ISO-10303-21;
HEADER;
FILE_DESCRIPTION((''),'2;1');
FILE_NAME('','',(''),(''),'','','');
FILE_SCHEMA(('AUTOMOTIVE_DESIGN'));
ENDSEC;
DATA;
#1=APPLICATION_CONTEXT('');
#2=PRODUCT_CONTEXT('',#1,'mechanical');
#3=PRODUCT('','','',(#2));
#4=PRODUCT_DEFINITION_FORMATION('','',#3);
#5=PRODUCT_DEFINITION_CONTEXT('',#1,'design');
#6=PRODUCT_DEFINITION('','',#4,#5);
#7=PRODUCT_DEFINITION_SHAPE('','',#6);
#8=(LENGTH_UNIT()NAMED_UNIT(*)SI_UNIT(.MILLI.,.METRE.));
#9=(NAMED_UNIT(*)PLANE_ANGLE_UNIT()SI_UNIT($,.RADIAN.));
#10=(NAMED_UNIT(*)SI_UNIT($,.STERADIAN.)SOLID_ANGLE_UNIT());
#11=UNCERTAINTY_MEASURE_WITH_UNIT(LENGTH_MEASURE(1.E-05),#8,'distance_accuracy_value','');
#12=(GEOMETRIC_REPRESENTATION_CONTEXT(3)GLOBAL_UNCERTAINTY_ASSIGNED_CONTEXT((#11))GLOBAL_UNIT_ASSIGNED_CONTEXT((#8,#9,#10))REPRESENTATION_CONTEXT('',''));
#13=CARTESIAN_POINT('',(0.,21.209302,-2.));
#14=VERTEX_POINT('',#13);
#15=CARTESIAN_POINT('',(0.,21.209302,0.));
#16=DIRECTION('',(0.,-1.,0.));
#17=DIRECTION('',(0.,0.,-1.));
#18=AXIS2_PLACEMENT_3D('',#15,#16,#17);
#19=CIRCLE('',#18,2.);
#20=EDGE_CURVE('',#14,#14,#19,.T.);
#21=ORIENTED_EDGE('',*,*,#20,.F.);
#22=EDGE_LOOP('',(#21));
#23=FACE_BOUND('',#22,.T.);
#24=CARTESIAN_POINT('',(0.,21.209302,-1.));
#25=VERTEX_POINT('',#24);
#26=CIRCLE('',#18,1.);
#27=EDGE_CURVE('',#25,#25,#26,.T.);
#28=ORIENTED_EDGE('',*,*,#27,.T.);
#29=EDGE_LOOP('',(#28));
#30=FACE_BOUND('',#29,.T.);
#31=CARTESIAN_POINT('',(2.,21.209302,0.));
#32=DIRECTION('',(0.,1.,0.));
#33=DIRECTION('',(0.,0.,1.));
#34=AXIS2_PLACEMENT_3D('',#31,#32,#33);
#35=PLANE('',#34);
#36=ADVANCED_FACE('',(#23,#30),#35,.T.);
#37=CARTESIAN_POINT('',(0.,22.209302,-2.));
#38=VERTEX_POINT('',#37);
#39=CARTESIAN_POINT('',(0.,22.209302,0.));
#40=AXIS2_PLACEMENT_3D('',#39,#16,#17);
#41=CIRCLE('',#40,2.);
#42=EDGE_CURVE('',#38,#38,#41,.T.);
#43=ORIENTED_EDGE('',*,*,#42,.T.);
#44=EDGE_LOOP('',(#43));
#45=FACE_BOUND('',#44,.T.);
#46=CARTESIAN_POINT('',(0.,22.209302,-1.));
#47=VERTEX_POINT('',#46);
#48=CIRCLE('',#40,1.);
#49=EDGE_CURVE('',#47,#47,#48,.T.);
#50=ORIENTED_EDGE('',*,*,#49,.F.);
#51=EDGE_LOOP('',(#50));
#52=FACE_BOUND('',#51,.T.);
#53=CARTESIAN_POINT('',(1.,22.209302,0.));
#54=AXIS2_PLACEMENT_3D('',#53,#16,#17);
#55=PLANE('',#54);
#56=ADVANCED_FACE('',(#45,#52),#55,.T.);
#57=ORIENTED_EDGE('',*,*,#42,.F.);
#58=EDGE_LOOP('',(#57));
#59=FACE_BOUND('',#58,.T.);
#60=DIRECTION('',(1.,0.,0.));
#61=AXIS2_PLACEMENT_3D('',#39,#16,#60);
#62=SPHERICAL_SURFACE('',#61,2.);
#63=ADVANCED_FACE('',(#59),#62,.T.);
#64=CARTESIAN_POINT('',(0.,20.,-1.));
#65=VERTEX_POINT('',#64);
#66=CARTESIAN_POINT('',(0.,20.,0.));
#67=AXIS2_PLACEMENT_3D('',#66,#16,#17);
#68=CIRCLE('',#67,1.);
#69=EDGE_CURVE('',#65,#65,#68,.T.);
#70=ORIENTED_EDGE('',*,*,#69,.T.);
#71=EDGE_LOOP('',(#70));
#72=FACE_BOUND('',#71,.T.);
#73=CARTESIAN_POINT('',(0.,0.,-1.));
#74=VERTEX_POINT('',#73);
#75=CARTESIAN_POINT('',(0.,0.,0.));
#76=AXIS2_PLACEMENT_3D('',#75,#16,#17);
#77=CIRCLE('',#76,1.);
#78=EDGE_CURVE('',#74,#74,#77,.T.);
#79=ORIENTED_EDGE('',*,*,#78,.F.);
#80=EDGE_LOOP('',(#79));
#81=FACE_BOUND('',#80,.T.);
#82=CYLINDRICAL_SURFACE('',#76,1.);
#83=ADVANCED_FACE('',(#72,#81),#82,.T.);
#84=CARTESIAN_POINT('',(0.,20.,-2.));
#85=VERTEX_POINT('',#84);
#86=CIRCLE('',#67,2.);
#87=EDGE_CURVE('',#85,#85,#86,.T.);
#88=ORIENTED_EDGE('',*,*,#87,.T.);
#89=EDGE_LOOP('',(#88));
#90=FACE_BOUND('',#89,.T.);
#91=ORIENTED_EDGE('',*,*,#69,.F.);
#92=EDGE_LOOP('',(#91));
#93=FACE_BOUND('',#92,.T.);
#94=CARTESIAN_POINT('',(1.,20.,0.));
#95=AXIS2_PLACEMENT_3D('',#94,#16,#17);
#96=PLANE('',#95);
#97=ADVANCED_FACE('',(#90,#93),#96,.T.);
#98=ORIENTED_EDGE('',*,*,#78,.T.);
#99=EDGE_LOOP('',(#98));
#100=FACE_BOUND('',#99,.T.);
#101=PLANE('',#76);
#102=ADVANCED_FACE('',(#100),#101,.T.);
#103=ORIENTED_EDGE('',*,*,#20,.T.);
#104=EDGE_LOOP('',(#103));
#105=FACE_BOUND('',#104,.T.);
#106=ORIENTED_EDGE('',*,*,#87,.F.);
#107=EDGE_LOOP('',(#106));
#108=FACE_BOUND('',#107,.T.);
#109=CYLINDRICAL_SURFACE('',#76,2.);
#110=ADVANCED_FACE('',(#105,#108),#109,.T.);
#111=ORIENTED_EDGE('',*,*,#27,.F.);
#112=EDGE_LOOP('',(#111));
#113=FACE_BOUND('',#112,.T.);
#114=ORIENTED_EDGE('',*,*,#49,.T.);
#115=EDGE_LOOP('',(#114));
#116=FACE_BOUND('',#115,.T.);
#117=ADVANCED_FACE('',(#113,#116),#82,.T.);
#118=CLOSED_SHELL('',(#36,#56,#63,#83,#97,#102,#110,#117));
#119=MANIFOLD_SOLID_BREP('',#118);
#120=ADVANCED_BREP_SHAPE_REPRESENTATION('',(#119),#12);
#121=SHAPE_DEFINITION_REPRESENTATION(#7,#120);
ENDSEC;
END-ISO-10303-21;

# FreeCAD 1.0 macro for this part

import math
import FreeCAD as App
import Part
import Sketcher
from FreeCAD import Vector

doc = App.newDocument("Part")
params = doc.addObject("Spreadsheet::Sheet", "Params")
for row, (alias, value) in enumerate([
    ("sketch1_radius", "2 mm"),
    ("sketch1_height", "20 mm"),
    ("revolution_angle", "360 deg"),
], start=1):
    params.set(f"A{row}", alias)
    params.set(f"B{row}", "=" + value)
    params.setAlias(f"B{row}", alias)

body = doc.addObject("PartDesign::Body", "Body")

# Sketch on XY plane
sketch1 = doc.addObject("Sketcher::SketchObject", "Sketch")
body.addObject(sketch1)
sketch1.AttachmentSupport = (doc.XY_Plane, [""])
sketch1.MapMode = "FlatFace"
sketch1.addGeometry(Part.LineSegment(Vector(0, 0, 0), Vector(1, 0, 0)), False)
sketch1.addGeometry(Part.LineSegment(Vector(1, 0, 0), Vector(1, 20, 0)), False)
sketch1.addGeometry(Part.LineSegment(Vector(1, 20, 0), Vector(2, 20, 0)), False)
sketch1.addGeometry(Part.LineSegment(Vector(2, 20, 0), Vector(2, 21.2, 0)), False)
sketch1.addGeometry(Part.LineSegment(Vector(2, 21.2, 0), Vector(1, 21.2, 0)), False)
sketch1.addGeometry(Part.LineSegment(Vector(1, 21.2, 0), Vector(1, 22.2, 0)), False)
sketch1.addGeometry(Part.LineSegment(Vector(1, 22.2, 0), Vector(2, 22.2, 0)), False)
sketch1.addGeometry(Part.ArcOfCircle(Part.Circle(Vector(0, 22.2, 0), Vector(0, 0, 1), 2), math.radians(0), math.radians(90)), False)
sketch1.addGeometry(Part.LineSegment(Vector(0, 24.2, 0), Vector(0, 0, 0)), False)
sketch1.addConstraint(Sketcher.Constraint("Coincident", 0, 2, 1, 1))
sketch1.addConstraint(Sketcher.Constraint("Coincident", 1, 2, 2, 1))
sketch1.addConstraint(Sketcher.Constraint("Coincident", 2, 2, 3, 1))
sketch1.addConstraint(Sketcher.Constraint("Coincident", 3, 2, 4, 1))
sketch1.addConstraint(Sketcher.Constraint("Coincident", 4, 2, 5, 1))
sketch1.addConstraint(Sketcher.Constraint("Coincident", 5, 2, 6, 1))
sketch1.addConstraint(Sketcher.Constraint("Coincident", 6, 2, 7, 1))
sketch1.addConstraint(Sketcher.Constraint("Coincident", 7, 2, 8, 1))
sketch1.addConstraint(Sketcher.Constraint("Coincident", 8, 2, 0, 1))
sketch1.addConstraint(Sketcher.Constraint("Horizontal", 0))
sketch1.addConstraint(Sketcher.Constraint("Vertical", 1))
sketch1.addConstraint(Sketcher.Constraint("Horizontal", 2))
sketch1.addConstraint(Sketcher.Constraint("Vertical", 3))
sketch1.addConstraint(Sketcher.Constraint("Horizontal", 4))
sketch1.addConstraint(Sketcher.Constraint("Vertical", 5))
sketch1.addConstraint(Sketcher.Constraint("Horizontal", 6))
sketch1.addConstraint(Sketcher.Constraint("Vertical", 8))
sketch1.addConstraint(Sketcher.Constraint("Coincident", 8, 2, -1, 1))
sketch1.addConstraint(Sketcher.Constraint("PointOnObject", 7, 3, -2))
sketch1.addConstraint(Sketcher.Constraint("Horizontal", 7, 3, 5, 2))
sketch1.addConstraint(Sketcher.Constraint("Vertical", 1, 2, 4, 2))
sketch1.addConstraint(Sketcher.Constraint("Vertical", 3, 2, 6, 2))
sketch1.addConstraint(Sketcher.Constraint("Equal", 0, 2))
sketch1.addConstraint(Sketcher.Constraint("Equal", 6, 5))
sketch1.addConstraint(Sketcher.Constraint("Radius", 7, 2.0))
sketch1.addConstraint(Sketcher.Constraint("DistanceY", 1, 1, 1, 2, 20.0))
sketch1.addConstraint(Sketcher.Constraint("DistanceY", 3, 1, 3, 2, 1.209302))
sketch1.setExpression("Constraints[24]", "Params.sketch1_radius")
sketch1.setExpression("Constraints[25]", "Params.sketch1_height")
revolution = doc.addObject("PartDesign::Revolution", "Revolution")
body.addObject(revolution)
revolution.Profile = sketch1
revolution.ReferenceAxis = (sketch1, ["V_Axis"])
revolution.setExpression("Angle", "Params.revolution_angle")

doc.recompute()
